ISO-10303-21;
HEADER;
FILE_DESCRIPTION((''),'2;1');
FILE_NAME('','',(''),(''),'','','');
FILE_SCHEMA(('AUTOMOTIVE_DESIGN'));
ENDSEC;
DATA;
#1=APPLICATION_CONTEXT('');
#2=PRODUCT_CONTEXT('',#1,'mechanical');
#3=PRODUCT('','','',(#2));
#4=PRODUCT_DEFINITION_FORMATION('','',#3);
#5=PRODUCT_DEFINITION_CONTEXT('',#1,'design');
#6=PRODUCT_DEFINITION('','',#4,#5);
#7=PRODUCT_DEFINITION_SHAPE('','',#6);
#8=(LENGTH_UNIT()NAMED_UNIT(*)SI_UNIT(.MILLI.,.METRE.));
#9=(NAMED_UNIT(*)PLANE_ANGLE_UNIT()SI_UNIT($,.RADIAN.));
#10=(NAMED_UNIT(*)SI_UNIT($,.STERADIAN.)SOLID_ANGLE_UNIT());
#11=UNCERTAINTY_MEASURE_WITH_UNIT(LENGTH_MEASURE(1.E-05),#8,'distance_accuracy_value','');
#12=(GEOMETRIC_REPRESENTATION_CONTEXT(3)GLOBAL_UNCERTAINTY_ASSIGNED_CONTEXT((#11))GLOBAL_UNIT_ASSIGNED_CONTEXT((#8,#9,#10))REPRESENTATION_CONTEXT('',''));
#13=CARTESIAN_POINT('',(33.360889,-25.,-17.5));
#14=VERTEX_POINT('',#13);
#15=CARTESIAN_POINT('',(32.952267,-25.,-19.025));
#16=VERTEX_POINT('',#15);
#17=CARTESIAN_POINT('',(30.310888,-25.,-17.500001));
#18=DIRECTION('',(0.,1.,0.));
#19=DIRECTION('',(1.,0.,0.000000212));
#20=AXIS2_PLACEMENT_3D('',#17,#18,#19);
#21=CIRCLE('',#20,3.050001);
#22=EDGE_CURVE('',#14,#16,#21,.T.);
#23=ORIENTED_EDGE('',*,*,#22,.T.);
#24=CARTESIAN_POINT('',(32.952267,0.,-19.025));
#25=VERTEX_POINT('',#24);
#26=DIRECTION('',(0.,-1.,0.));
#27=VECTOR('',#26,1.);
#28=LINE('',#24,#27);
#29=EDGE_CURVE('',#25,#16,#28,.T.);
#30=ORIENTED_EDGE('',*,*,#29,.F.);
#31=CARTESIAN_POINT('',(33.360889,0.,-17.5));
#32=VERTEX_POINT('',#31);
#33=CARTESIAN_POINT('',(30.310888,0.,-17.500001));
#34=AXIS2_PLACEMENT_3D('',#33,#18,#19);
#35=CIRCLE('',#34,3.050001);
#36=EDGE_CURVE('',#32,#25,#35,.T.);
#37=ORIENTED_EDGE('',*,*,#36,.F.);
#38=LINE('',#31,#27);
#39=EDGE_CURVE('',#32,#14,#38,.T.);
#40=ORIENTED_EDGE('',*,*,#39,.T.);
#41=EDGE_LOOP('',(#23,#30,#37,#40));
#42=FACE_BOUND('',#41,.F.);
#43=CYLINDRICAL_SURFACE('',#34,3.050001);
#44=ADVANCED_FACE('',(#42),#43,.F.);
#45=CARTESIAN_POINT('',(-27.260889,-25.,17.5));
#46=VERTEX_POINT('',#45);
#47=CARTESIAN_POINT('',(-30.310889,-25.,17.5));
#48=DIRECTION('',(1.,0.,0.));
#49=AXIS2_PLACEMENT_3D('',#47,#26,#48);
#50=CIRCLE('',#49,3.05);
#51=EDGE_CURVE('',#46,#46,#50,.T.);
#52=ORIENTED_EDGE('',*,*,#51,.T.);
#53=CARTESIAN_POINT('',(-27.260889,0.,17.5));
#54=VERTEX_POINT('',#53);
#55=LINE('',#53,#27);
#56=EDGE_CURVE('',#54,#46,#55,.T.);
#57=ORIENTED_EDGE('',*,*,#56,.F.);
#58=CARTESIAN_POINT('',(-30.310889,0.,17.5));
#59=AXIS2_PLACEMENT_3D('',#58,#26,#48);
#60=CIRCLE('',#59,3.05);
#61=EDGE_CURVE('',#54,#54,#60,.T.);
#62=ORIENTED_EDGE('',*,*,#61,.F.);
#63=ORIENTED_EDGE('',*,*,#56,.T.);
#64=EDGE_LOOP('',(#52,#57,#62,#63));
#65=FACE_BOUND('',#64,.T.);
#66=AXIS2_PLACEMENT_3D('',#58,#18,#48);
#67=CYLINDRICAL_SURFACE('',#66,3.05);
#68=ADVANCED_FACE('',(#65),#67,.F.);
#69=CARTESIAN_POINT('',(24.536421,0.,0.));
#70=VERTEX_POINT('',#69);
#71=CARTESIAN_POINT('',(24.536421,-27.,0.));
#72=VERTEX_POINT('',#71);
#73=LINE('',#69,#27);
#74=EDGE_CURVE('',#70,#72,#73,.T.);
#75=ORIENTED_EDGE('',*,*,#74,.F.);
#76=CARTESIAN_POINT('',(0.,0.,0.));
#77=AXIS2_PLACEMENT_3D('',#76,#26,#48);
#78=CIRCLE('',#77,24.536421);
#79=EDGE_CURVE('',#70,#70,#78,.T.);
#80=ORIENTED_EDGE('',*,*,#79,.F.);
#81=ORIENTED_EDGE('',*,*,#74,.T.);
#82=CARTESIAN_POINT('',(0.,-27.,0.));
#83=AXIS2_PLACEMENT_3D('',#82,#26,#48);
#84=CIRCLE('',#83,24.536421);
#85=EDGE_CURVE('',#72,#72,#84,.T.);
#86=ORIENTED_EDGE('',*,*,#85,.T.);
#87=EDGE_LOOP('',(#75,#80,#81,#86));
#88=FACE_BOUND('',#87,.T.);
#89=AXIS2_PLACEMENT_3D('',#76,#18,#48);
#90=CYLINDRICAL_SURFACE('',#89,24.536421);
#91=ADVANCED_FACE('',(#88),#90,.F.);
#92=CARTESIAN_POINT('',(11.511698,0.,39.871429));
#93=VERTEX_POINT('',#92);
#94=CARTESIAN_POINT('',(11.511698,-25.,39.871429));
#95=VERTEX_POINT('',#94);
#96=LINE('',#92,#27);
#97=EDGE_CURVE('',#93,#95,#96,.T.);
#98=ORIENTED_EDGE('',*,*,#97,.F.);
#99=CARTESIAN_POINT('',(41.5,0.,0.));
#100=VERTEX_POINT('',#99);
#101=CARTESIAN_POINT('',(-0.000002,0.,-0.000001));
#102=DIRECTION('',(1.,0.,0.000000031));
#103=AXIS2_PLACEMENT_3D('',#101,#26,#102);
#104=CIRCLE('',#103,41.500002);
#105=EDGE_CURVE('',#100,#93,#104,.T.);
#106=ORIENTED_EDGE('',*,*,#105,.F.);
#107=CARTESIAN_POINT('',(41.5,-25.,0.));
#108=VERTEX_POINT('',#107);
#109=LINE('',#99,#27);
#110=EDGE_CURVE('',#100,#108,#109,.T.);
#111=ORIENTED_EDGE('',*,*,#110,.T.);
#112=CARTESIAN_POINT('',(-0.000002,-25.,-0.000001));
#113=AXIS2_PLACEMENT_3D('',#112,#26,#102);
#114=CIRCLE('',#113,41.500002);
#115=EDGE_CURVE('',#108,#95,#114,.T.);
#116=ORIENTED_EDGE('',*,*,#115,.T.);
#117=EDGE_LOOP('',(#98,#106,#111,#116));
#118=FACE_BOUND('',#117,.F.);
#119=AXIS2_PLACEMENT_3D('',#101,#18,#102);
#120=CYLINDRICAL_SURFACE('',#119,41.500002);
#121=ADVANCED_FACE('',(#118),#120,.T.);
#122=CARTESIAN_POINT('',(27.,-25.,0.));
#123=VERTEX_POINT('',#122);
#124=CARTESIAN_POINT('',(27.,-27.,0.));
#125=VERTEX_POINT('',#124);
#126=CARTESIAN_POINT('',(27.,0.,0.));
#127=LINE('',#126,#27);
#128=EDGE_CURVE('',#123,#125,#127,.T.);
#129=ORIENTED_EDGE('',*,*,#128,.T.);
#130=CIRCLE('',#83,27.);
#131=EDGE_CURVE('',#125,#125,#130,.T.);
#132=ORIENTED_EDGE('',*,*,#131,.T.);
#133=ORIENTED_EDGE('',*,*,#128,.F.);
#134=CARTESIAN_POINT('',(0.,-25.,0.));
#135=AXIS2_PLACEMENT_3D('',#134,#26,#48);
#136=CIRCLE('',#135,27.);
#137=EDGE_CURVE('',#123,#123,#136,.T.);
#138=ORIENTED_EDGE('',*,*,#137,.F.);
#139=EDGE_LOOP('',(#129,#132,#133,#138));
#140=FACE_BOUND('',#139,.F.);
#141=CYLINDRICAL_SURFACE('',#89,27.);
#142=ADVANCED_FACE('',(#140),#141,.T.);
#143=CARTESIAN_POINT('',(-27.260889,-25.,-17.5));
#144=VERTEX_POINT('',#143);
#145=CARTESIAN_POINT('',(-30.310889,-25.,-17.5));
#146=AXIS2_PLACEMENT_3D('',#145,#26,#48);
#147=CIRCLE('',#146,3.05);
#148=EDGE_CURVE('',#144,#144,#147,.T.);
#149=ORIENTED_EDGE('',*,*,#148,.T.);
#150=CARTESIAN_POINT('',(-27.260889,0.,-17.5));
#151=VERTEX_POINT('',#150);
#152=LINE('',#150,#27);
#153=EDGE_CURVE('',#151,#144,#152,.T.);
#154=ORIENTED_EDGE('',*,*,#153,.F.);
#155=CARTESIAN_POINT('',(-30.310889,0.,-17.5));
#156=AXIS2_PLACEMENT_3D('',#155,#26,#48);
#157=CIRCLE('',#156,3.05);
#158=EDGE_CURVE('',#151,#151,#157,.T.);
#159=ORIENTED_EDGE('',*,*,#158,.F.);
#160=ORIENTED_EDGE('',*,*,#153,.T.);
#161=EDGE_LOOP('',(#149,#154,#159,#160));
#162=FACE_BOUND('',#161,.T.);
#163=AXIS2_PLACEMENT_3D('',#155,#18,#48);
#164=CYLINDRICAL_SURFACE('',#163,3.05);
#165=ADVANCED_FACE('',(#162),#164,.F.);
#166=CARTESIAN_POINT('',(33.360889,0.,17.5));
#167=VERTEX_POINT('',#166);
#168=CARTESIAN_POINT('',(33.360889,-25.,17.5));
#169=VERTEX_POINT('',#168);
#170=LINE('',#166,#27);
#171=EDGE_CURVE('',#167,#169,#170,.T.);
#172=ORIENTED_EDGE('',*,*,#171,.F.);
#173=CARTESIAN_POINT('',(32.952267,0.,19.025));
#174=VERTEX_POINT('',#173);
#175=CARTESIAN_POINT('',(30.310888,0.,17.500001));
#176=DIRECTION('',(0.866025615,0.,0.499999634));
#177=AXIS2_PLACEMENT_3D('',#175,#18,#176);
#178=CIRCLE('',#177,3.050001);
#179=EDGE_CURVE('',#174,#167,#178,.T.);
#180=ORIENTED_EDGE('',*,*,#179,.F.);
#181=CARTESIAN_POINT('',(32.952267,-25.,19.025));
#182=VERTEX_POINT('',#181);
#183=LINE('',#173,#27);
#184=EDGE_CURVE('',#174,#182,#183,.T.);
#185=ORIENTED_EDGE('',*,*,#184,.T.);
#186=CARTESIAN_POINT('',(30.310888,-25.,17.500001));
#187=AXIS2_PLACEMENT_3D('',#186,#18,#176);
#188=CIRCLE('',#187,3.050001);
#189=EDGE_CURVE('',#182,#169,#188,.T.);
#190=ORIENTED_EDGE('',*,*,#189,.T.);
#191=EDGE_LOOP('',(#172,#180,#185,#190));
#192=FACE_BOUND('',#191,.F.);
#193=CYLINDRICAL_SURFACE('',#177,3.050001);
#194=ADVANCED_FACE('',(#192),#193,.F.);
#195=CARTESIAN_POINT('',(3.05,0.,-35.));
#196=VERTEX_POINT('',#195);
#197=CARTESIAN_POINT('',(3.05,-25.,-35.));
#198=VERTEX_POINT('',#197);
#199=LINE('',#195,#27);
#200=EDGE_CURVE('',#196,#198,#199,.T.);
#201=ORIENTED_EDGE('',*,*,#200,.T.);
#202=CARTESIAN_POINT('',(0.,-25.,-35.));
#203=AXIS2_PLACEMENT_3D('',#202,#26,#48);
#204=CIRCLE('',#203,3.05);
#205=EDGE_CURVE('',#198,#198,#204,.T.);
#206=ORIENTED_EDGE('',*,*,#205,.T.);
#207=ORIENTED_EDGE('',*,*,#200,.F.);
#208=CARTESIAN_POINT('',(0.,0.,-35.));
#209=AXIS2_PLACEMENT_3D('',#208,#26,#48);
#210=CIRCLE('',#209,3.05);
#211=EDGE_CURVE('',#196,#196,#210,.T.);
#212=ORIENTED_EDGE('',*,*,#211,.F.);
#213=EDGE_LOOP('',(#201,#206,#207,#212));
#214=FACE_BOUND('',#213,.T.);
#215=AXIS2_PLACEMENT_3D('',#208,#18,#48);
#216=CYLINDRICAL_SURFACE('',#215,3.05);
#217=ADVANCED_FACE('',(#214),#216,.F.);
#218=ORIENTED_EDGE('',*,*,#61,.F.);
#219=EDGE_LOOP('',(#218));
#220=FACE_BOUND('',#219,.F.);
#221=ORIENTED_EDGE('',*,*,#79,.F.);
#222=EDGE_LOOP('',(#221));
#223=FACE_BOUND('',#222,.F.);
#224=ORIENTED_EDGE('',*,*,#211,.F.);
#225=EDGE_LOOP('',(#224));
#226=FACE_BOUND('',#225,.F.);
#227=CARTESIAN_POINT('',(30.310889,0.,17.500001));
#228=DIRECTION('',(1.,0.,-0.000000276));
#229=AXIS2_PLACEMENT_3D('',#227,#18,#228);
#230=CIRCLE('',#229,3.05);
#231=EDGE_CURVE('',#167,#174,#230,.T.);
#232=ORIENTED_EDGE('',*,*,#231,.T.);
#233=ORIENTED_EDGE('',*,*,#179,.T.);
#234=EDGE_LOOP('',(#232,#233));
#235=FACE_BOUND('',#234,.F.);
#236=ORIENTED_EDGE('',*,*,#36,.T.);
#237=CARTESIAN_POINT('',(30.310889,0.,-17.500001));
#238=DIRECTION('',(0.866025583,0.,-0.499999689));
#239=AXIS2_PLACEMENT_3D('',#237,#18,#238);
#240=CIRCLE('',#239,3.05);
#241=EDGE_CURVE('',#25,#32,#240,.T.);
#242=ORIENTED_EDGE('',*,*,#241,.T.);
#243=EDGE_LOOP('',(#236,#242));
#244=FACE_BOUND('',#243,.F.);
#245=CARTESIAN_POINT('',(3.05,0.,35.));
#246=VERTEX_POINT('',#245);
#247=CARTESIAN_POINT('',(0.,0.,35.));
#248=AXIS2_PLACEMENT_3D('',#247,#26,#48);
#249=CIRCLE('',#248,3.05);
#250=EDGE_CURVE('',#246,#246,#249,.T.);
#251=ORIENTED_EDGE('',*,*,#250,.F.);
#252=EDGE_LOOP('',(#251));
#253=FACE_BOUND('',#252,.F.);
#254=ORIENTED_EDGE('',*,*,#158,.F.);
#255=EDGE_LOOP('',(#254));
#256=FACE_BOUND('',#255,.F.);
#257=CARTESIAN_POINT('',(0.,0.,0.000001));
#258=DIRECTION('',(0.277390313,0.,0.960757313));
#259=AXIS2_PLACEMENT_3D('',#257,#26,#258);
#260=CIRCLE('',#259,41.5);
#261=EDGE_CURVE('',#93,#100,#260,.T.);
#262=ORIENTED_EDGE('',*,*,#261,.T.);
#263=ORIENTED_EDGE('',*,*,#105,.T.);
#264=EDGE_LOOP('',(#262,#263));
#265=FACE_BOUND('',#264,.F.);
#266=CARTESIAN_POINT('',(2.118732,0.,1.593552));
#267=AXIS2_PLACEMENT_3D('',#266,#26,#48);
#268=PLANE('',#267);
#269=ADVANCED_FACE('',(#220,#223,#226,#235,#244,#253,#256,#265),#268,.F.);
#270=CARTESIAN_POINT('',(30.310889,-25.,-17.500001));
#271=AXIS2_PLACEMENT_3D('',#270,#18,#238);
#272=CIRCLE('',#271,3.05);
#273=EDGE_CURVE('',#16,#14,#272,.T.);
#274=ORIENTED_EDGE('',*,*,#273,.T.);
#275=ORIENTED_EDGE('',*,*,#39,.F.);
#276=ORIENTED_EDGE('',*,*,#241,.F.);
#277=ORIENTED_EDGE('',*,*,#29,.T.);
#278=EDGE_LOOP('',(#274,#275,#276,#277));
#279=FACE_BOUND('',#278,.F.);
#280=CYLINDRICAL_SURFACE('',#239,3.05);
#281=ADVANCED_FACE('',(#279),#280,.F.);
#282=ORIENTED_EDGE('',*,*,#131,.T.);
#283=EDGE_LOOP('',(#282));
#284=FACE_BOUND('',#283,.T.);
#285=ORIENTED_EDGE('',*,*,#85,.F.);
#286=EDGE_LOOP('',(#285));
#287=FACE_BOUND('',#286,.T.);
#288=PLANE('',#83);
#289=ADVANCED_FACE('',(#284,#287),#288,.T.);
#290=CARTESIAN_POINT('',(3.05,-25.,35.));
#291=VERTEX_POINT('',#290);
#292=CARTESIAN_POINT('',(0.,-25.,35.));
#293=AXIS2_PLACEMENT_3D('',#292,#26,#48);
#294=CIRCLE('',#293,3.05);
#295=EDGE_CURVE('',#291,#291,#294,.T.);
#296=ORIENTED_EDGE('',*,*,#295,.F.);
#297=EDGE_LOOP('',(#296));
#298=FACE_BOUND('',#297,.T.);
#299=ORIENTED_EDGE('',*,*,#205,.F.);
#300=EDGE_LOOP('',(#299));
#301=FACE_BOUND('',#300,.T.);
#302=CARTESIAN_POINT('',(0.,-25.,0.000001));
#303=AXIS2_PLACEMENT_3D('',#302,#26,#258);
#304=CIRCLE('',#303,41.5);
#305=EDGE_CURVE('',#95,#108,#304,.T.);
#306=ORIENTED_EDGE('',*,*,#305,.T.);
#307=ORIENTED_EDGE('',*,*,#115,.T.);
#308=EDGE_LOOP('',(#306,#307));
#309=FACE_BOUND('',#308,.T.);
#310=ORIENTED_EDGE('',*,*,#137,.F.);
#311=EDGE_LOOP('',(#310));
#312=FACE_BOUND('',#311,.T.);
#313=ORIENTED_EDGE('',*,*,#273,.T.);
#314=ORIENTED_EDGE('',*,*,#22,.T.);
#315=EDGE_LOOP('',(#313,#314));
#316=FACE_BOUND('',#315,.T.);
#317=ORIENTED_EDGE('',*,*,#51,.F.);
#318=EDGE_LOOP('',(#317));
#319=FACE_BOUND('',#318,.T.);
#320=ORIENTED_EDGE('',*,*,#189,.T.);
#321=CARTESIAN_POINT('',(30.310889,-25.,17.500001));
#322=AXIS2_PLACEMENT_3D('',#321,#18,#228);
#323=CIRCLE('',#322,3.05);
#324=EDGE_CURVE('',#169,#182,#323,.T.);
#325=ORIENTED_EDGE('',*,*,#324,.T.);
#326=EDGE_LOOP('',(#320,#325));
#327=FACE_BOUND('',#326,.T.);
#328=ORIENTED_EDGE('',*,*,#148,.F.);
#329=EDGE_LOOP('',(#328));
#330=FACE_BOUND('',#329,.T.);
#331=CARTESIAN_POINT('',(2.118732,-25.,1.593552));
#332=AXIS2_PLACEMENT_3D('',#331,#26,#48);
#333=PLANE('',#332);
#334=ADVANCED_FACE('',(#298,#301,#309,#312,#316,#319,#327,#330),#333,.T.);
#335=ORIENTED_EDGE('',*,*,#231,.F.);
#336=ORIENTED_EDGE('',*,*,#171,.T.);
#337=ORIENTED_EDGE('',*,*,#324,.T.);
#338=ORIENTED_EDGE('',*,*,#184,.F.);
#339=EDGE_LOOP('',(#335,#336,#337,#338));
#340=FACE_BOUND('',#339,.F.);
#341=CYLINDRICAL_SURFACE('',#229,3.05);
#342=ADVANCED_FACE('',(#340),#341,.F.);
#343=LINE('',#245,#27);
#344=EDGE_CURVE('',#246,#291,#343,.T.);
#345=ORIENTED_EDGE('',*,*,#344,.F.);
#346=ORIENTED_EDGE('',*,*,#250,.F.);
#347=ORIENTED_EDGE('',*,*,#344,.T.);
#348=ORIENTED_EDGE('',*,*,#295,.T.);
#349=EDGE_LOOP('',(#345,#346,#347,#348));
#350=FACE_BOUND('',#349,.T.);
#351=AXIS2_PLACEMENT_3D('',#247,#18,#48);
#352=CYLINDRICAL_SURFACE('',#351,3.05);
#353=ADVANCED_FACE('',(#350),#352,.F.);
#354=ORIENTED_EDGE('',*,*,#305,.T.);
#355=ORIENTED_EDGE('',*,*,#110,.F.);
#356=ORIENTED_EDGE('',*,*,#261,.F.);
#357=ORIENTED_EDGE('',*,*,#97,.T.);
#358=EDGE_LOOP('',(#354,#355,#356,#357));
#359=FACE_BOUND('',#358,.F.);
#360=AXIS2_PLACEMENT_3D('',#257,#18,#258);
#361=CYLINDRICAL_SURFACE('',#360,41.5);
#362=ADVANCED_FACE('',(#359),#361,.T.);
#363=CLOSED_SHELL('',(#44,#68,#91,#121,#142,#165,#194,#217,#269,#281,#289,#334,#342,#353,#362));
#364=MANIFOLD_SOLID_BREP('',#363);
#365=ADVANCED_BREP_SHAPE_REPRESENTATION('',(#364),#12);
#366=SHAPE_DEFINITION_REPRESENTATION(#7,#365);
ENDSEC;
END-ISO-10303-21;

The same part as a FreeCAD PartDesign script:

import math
import FreeCAD as App
import Part
import Sketcher
from FreeCAD import Vector

doc = App.newDocument("Part")
params = doc.addObject("Spreadsheet::Sheet", "Params")
for row, (alias, value) in enumerate([
    ("sketch1_diameter", "54 mm"),
    ("sketch1_diameter2", "6.1 mm"),
    ("sketch1_radius", "41.5 mm"),
    ("pad1_length", "25 mm"),
    ("sketch2_diameter", "54 mm"),
    ("pad2_length", "27 mm"),
    ("pocket1_length", "27 mm"),
], start=1):
    params.set(f"A{row}", alias)
    params.set(f"B{row}", "=" + value)
    params.setAlias(f"B{row}", alias)

body = doc.addObject("PartDesign::Body", "Body")

# Sketch on XZ plane
sketch1 = body.newObject("Sketcher::SketchObject", "Sketch")
sketch1.AttachmentSupport = (doc.getObject("XZ_Plane"), [""])
sketch1.MapMode = "FlatFace"
sketch1.addGeometry([
    Part.ArcOfCircle(Part.Circle(Vector(0, 0.000001, 0), Vector(0, 0, 1), 41.5), math.radians(73.895488), math.radians(359.999999)),  # 0
    Part.ArcOfCircle(Part.Circle(Vector(-0.000002, -0.000001, 0), Vector(0, 0, 1), 41.500002), math.radians(0.000002), math.radians(73.895485)),  # 1
    Part.Circle(Vector(0, -35, 0), Vector(0, 0, 1), 3.05),  # 2
    Part.Circle(Vector(-30.310889, -17.5, 0), Vector(0, 0, 1), 3.05),  # 3
    Part.ArcOfCircle(Part.Circle(Vector(30.310888, -17.500001, 0), Vector(0, 0, 1), 3.050001), math.radians(-29.999976), math.radians(0.000012)),  # 4
    Part.ArcOfCircle(Part.Circle(Vector(30.310889, -17.500001, 0), Vector(0, 0, 1), 3.05), math.radians(0.000016), math.radians(330.000021)),  # 5
    Part.Circle(Vector(-30.310889, 17.5, 0), Vector(0, 0, 1), 3.05),  # 6
    Part.Circle(Vector(0, 0, 0), Vector(0, 0, 1), 27),  # 7
    Part.Circle(Vector(0, 35, 0), Vector(0, 0, 1), 3.05),  # 8
    Part.ArcOfCircle(Part.Circle(Vector(30.310889, 17.500001, 0), Vector(0, 0, 1), 3.05), math.radians(29.999979), math.radians(359.999984)),  # 9
    Part.ArcOfCircle(Part.Circle(Vector(30.310888, 17.500001, 0), Vector(0, 0, 1), 3.050001), math.radians(-0.000012), math.radians(29.999976)),  # 10
], False)
sketch1.addConstraint([
    Sketcher.Constraint("Tangent", 0, 1, 1, 2),
    Sketcher.Constraint("Coincident", 1, 1, 0, 2),
    Sketcher.Constraint("Tangent", 4, 1, 5, 2),
    Sketcher.Constraint("Coincident", 5, 1, 4, 2),
    Sketcher.Constraint("Tangent", 9, 1, 10, 2),
    Sketcher.Constraint("Coincident", 10, 1, 9, 2),
    Sketcher.Constraint("Coincident", 0, 3, -1, 1),
    Sketcher.Constraint("Coincident", 7, 3, -1, 1),
    Sketcher.Constraint("Equal", 2, 3),
    Sketcher.Constraint("Equal", 3, 4),
    Sketcher.Constraint("Equal", 5, 6),
    Sketcher.Constraint("Equal", 6, 8),
    Sketcher.Constraint("Equal", 8, 9),
    Sketcher.Constraint("Symmetric", 4, 3, 6, 3, -1, 1),
    Sketcher.Constraint("Symmetric", 2, 3, 8, 3, -1, 1),
    Sketcher.Constraint("Symmetric", 3, 3, 9, 3, -1, 1),
    Sketcher.Constraint("Symmetric", 3, 3, 4, 3, -2),
    Sketcher.Constraint("PointOnObject", 2, 3, -2),
    Sketcher.Constraint("PointOnObject", 1, 1, -1),
    Sketcher.Constraint("Horizontal", 4, 3, 5, 1),
    Sketcher.Constraint("Horizontal", 9, 3, 10, 1),
    Sketcher.Constraint("Vertical", 4, 1, 9, 1),
    Sketcher.Constraint("Diameter", 7, 54.0),
    Sketcher.Constraint("Diameter", 2, 6.1),
    Sketcher.Constraint("Radius", 0, 41.5),
    Sketcher.Constraint("DistanceY", 2, 3, -1, 1, 35.0),
    Sketcher.Constraint("DistanceY", 3, 3, 6, 3, 35.0),
    Sketcher.Constraint("DistanceY", 4, 1, -1, 1, 19.025),
    Sketcher.Constraint("DistanceX", 0, 3, 0, 1, 11.511698),
    Sketcher.Constraint("DistanceX", 3, 3, -1, 1, 30.310889),
])
sketch1.setExpression("Constraints[22]", "Params.sketch1_diameter")
sketch1.setExpression("Constraints[23]", "Params.sketch1_diameter2")
sketch1.setExpression("Constraints[24]", "Params.sketch1_radius")
pad1 = body.newObject("PartDesign::Pad", "Pad")
pad1.Profile = sketch1
pad1.setExpression("Length", "Params.pad1_length")

# Sketch on XZ plane
sketch2 = body.newObject("Sketcher::SketchObject", "Sketch001")
sketch2.AttachmentSupport = (doc.getObject("XZ_Plane"), [""])
sketch2.MapMode = "FlatFace"
sketch2.addGeometry(Part.Circle(Vector(0, 0, 0), Vector(0, 0, 1), 27), False)
sketch2.addConstraint([
    Sketcher.Constraint("Coincident", 0, 3, -1, 1),
    Sketcher.Constraint("Diameter", 0, 54.0),
])
sketch2.setExpression("Constraints[1]", "Params.sketch2_diameter")
pad2 = body.newObject("PartDesign::Pad", "Pad001")
pad2.Profile = sketch2
pad2.setExpression("Length", "Params.pad2_length")

# Sketch on XZ plane
sketch3 = body.newObject("Sketcher::SketchObject", "Sketch002")
sketch3.AttachmentSupport = (doc.getObject("XZ_Plane"), [""])
sketch3.MapMode = "FlatFace"
sketch3.addGeometry(Part.Circle(Vector(0, 0, 0), Vector(0, 0, 1), 24.536421), False)
sketch3.addConstraint([
    Sketcher.Constraint("Coincident", 0, 3, -1, 1),
    Sketcher.Constraint("Diameter", 0, 49.072842),
])
pocket1 = body.newObject("PartDesign::Pocket", "Pocket")
pocket1.Profile = sketch3
pocket1.setExpression("Length", "Params.pocket1_length")
pocket1.Reversed = True

doc.recompute()
